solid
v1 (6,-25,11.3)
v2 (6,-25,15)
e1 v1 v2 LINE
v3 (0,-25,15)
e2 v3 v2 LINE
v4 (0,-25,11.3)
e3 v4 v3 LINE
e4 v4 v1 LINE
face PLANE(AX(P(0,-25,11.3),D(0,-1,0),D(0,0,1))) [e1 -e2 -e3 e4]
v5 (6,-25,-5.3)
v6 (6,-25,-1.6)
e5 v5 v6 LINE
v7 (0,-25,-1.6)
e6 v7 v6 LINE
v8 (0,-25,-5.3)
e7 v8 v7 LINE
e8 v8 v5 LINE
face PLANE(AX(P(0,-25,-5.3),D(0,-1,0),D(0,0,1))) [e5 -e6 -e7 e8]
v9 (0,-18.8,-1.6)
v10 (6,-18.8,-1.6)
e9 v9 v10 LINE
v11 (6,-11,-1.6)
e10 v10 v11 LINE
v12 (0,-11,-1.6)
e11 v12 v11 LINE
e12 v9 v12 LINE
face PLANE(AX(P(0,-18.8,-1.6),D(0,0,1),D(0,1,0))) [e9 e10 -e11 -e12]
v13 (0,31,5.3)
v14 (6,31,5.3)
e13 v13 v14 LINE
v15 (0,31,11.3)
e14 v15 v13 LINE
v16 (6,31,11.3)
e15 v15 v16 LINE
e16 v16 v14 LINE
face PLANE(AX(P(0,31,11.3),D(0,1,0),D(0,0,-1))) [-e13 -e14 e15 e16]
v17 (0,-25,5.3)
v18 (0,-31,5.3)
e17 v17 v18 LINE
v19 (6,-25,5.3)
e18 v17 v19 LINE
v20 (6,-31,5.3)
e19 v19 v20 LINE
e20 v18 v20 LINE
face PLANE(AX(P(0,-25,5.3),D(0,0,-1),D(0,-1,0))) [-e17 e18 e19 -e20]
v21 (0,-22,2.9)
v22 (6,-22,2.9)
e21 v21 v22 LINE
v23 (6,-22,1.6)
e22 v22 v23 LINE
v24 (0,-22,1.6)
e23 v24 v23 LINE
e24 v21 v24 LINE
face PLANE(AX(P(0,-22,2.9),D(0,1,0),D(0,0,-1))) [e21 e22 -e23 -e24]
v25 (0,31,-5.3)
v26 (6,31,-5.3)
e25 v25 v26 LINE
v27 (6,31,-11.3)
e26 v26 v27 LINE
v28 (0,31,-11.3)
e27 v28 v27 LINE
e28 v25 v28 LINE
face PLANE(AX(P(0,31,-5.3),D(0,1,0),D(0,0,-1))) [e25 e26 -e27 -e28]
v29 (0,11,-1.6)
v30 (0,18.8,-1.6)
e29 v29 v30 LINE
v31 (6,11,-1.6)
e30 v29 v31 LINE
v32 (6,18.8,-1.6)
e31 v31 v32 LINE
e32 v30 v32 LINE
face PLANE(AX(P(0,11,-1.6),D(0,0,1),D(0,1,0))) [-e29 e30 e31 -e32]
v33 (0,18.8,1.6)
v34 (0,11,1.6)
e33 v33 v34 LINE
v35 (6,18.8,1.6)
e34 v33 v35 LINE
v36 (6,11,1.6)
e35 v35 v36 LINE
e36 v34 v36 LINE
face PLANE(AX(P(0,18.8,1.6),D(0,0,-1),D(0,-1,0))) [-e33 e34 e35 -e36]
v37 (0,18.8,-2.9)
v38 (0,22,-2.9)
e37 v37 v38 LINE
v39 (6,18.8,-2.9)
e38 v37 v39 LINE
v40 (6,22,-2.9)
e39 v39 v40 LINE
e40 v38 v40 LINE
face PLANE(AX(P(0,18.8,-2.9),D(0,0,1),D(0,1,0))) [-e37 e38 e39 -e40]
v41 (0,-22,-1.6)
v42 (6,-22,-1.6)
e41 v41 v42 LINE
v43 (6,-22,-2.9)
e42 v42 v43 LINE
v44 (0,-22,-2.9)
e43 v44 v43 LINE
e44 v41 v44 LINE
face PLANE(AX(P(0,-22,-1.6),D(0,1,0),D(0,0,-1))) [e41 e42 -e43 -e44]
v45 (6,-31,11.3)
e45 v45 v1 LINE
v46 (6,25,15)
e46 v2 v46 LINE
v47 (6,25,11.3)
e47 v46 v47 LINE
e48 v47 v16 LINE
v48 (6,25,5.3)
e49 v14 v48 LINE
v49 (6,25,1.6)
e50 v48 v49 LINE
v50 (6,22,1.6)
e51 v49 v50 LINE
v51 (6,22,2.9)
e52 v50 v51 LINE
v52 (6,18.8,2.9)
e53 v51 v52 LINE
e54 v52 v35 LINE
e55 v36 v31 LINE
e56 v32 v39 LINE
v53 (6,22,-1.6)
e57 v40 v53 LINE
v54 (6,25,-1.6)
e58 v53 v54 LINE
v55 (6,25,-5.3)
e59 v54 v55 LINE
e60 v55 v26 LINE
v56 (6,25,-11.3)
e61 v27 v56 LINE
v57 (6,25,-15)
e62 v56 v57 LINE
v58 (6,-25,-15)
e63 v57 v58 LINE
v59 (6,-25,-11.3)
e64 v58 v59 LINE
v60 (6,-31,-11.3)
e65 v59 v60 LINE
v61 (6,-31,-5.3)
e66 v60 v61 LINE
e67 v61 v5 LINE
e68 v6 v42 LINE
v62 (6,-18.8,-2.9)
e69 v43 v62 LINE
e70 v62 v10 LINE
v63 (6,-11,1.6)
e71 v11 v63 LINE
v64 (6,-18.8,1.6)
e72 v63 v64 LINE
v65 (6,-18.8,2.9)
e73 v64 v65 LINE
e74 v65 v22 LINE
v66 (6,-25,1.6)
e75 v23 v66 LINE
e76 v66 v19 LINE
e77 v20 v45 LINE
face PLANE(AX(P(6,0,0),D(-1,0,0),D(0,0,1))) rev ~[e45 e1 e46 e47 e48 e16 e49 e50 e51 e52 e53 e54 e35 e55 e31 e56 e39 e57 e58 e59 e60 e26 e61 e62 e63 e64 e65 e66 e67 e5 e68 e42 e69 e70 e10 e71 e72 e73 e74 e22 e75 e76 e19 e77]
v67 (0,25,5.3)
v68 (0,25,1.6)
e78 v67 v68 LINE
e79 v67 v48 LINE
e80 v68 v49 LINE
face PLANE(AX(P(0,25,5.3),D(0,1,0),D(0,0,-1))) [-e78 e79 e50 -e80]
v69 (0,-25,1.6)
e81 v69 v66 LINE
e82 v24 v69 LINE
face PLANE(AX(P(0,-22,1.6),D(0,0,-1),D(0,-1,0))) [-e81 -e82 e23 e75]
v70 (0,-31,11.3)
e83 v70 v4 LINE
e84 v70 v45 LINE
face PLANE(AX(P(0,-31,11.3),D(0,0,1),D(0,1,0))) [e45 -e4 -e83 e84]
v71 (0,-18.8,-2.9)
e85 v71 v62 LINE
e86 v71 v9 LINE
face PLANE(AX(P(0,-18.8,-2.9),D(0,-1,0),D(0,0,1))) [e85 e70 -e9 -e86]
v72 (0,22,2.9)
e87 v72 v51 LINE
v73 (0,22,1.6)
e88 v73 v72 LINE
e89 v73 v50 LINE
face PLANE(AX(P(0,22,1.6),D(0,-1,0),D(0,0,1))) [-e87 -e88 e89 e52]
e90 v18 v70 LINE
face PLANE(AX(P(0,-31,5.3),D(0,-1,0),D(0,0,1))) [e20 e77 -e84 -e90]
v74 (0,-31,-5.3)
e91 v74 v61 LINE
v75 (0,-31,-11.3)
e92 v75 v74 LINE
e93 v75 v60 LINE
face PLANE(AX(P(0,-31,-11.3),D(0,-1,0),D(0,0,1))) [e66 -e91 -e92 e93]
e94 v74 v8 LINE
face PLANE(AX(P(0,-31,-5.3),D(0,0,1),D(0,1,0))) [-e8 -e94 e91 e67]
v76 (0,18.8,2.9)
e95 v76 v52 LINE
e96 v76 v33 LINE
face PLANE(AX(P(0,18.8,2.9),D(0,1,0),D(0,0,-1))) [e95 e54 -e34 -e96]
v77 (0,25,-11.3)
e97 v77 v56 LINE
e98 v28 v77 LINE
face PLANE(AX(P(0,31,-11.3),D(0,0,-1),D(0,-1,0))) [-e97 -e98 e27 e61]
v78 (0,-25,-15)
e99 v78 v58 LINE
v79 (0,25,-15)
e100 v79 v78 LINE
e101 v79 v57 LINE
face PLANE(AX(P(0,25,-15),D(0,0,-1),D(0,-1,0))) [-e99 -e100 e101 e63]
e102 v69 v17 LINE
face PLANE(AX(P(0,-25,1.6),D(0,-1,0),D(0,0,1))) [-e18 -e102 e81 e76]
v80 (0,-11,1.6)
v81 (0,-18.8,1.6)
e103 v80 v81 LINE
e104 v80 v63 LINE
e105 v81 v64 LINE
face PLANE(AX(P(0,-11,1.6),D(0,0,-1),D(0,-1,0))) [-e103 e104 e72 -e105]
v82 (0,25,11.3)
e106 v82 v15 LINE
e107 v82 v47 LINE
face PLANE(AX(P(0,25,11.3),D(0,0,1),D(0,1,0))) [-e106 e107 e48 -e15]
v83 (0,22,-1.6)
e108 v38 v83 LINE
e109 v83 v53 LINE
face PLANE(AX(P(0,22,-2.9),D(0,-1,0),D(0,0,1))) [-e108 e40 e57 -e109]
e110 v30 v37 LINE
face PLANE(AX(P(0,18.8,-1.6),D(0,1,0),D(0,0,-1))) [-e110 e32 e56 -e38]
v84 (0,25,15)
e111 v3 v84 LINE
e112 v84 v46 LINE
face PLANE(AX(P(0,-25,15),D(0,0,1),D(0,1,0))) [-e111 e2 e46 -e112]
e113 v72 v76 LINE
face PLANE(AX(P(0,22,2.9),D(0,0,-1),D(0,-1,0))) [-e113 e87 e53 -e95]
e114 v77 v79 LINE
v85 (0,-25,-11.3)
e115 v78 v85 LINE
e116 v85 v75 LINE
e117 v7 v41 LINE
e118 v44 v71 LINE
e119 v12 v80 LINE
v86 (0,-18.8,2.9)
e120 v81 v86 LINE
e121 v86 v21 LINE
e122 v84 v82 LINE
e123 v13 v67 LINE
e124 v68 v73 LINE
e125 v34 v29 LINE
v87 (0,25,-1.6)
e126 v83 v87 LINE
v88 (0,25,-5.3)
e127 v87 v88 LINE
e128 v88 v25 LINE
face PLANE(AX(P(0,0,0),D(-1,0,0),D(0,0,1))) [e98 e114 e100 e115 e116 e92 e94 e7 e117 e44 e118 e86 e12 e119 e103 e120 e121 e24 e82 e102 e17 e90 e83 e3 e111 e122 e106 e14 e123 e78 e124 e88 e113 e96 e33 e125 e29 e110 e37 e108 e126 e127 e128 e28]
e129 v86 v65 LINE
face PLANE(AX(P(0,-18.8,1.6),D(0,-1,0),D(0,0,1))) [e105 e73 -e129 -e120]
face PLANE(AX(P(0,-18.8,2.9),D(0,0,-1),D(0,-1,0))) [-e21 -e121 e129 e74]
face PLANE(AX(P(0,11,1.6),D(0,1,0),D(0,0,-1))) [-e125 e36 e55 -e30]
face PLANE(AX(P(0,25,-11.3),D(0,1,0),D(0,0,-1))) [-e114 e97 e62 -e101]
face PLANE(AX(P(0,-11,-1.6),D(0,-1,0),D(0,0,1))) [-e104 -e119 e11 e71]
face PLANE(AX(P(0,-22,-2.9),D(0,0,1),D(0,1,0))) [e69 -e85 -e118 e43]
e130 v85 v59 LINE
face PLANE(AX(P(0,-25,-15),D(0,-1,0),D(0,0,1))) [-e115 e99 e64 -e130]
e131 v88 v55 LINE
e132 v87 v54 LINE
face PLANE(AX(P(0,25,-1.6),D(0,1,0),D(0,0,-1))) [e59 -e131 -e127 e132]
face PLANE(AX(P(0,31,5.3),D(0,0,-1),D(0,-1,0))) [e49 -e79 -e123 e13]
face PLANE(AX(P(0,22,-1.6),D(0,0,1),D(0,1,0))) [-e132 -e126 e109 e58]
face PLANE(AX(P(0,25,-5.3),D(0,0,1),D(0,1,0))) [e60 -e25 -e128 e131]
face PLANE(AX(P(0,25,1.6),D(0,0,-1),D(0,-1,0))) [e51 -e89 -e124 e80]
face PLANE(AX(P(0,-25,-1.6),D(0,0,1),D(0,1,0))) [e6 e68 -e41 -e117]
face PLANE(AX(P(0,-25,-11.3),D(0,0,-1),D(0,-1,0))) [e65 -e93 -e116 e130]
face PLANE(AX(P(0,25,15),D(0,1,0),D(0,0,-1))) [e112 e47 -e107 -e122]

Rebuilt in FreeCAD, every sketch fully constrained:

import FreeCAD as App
import Part
import Sketcher
from FreeCAD import Vector


def add_polygon(sketch, points):
    """Adds a closed chain of lines whose ends are joined by coincident constraints."""
    first, n = sketch.GeometryCount, len(points)
    for a, b in zip(points, points[1:] + points[:1]):
        sketch.addGeometry(Part.LineSegment(App.Vector(*a, 0), App.Vector(*b, 0)), False)
    for i in range(n):
        sketch.addConstraint(Sketcher.Constraint("Coincident", first + i, 2, first + (i + 1) % n, 1))

doc = App.newDocument("Part")
body = doc.addObject("PartDesign::Body", "Body")

# Sketch on YZ plane
sketch1 = doc.addObject("Sketcher::SketchObject", "Sketch")
body.addObject(sketch1)
sketch1.AttachmentSupport = (doc.YZ_Plane, [""])
sketch1.MapMode = "FlatFace"
add_polygon(sketch1, [(25, 15), (-25, 15), (-25, 11.3), (-31, 11.3), (-31, 5.3), (-25, 5.3), (-25, 1.6), (-22, 1.6), (-22, 2.9), (-18.8, 2.9), (-18.8, 1.6), (-11, 1.6), (-11, -1.6), (-18.8, -1.6), (-18.8, -2.9), (-22, -2.9), (-22, -1.6), (-25, -1.6), (-25, -5.3), (-31, -5.3), (-31, -11.3), (-25, -11.3), (-25, -15), (25, -15), (25, -11.3), (31, -11.3), (31, -5.3), (25, -5.3), (25, -1.6), (22, -1.6), (22, -2.9), (18.8, -2.9), (18.8, -1.6), (11, -1.6), (11, 1.6), (18.8, 1.6), (18.8, 2.9), (22, 2.9), (22, 1.6), (25, 1.6), (25, 5.3), (31, 5.3), (31, 11.3), (25, 11.3)])  # lines 0-43
sketch1.addConstraint([
    Sketcher.Constraint("Horizontal", 0),
    Sketcher.Constraint("Vertical", 1),
    Sketcher.Constraint("Horizontal", 2),
    Sketcher.Constraint("Vertical", 3),
    Sketcher.Constraint("Horizontal", 4),
    Sketcher.Constraint("Vertical", 5),
    Sketcher.Constraint("Horizontal", 6),
    Sketcher.Constraint("Vertical", 7),
    Sketcher.Constraint("Horizontal", 8),
    Sketcher.Constraint("Vertical", 9),
    Sketcher.Constraint("Horizontal", 10),
    Sketcher.Constraint("Vertical", 11),
    Sketcher.Constraint("Horizontal", 12),
    Sketcher.Constraint("Vertical", 13),
    Sketcher.Constraint("Horizontal", 14),
    Sketcher.Constraint("Vertical", 15),
    Sketcher.Constraint("Horizontal", 16),
    Sketcher.Constraint("Vertical", 17),
    Sketcher.Constraint("Horizontal", 18),
    Sketcher.Constraint("Vertical", 19),
    Sketcher.Constraint("Horizontal", 20),
    Sketcher.Constraint("Vertical", 21),
    Sketcher.Constraint("Horizontal", 22),
    Sketcher.Constraint("Vertical", 23),
    Sketcher.Constraint("Horizontal", 24),
    Sketcher.Constraint("Vertical", 25),
    Sketcher.Constraint("Horizontal", 26),
    Sketcher.Constraint("Vertical", 27),
    Sketcher.Constraint("Horizontal", 28),
    Sketcher.Constraint("Vertical", 29),
    Sketcher.Constraint("Horizontal", 30),
    Sketcher.Constraint("Vertical", 31),
    Sketcher.Constraint("Horizontal", 32),
    Sketcher.Constraint("Vertical", 33),
    Sketcher.Constraint("Horizontal", 34),
    Sketcher.Constraint("Vertical", 35),
    Sketcher.Constraint("Horizontal", 36),
    Sketcher.Constraint("Vertical", 37),
    Sketcher.Constraint("Horizontal", 38),
    Sketcher.Constraint("Vertical", 39),
    Sketcher.Constraint("Horizontal", 40),
    Sketcher.Constraint("Vertical", 41),
    Sketcher.Constraint("Horizontal", 42),
    Sketcher.Constraint("Vertical", 43),
    Sketcher.Constraint("Symmetric", 0, 2, 22, 2, -1, 1),
    Sketcher.Constraint("Symmetric", 2, 2, 24, 2, -1, 1),
    Sketcher.Constraint("Symmetric", 4, 2, 26, 2, -1, 1),
    Sketcher.Constraint("Symmetric", 6, 2, 28, 2, -1, 1),
    Sketcher.Constraint("Symmetric", 8, 2, 30, 2, -1, 1),
    Sketcher.Constraint("Symmetric", 10, 2, 32, 2, -1, 1),
    Sketcher.Constraint("Symmetric", 12, 2, 34, 2, -1, 1),
    Sketcher.Constraint("Symmetric", 14, 2, 36, 2, -1, 1),
    Sketcher.Constraint("Symmetric", 16, 2, 38, 2, -1, 1),
    Sketcher.Constraint("Symmetric", 18, 2, 40, 2, -1, 1),
    Sketcher.Constraint("Symmetric", 20, 2, 42, 2, -1, 1),
    Sketcher.Constraint("Symmetric", 20, 2, 23, 2, -2),
    Sketcher.Constraint("Symmetric", 18, 2, 25, 2, -2),
    Sketcher.Constraint("Symmetric", 16, 2, 27, 2, -2),
    Sketcher.Constraint("Symmetric", 14, 2, 29, 2, -2),
    Sketcher.Constraint("Symmetric", 12, 2, 31, 2, -2),
    Sketcher.Constraint("Horizontal", 6, 2, 9, 2),
    Sketcher.Constraint("Vertical", 1, 2, 4, 2),
    Sketcher.Constraint("Equal", 42, 3),
    Sketcher.Constraint("Equal", 1, 5),
    Sketcher.Constraint("Equal", 36, 11),
    Sketcher.Constraint("DistanceX", 0, 2, 0, 1, 50.0),
    Sketcher.Constraint("DistanceX", 2, 2, 2, 1, 6.0),
    Sketcher.Constraint("DistanceX", 6, 1, 6, 2, 3.0),
    Sketcher.Constraint("DistanceX", 8, 1, 8, 2, 3.2),
    Sketcher.Constraint("DistanceX", 10, 1, 10, 2, 7.8),
    Sketcher.Constraint("DistanceY", 1, 2, 1, 1, 3.7),
    Sketcher.Constraint("DistanceY", 7, 1, 7, 2, 1.3),
])
pad1 = doc.addObject("PartDesign::Pad", "Pad")
body.addObject(pad1)
pad1.Profile = sketch1
pad1.Length = 6

doc.recompute()
